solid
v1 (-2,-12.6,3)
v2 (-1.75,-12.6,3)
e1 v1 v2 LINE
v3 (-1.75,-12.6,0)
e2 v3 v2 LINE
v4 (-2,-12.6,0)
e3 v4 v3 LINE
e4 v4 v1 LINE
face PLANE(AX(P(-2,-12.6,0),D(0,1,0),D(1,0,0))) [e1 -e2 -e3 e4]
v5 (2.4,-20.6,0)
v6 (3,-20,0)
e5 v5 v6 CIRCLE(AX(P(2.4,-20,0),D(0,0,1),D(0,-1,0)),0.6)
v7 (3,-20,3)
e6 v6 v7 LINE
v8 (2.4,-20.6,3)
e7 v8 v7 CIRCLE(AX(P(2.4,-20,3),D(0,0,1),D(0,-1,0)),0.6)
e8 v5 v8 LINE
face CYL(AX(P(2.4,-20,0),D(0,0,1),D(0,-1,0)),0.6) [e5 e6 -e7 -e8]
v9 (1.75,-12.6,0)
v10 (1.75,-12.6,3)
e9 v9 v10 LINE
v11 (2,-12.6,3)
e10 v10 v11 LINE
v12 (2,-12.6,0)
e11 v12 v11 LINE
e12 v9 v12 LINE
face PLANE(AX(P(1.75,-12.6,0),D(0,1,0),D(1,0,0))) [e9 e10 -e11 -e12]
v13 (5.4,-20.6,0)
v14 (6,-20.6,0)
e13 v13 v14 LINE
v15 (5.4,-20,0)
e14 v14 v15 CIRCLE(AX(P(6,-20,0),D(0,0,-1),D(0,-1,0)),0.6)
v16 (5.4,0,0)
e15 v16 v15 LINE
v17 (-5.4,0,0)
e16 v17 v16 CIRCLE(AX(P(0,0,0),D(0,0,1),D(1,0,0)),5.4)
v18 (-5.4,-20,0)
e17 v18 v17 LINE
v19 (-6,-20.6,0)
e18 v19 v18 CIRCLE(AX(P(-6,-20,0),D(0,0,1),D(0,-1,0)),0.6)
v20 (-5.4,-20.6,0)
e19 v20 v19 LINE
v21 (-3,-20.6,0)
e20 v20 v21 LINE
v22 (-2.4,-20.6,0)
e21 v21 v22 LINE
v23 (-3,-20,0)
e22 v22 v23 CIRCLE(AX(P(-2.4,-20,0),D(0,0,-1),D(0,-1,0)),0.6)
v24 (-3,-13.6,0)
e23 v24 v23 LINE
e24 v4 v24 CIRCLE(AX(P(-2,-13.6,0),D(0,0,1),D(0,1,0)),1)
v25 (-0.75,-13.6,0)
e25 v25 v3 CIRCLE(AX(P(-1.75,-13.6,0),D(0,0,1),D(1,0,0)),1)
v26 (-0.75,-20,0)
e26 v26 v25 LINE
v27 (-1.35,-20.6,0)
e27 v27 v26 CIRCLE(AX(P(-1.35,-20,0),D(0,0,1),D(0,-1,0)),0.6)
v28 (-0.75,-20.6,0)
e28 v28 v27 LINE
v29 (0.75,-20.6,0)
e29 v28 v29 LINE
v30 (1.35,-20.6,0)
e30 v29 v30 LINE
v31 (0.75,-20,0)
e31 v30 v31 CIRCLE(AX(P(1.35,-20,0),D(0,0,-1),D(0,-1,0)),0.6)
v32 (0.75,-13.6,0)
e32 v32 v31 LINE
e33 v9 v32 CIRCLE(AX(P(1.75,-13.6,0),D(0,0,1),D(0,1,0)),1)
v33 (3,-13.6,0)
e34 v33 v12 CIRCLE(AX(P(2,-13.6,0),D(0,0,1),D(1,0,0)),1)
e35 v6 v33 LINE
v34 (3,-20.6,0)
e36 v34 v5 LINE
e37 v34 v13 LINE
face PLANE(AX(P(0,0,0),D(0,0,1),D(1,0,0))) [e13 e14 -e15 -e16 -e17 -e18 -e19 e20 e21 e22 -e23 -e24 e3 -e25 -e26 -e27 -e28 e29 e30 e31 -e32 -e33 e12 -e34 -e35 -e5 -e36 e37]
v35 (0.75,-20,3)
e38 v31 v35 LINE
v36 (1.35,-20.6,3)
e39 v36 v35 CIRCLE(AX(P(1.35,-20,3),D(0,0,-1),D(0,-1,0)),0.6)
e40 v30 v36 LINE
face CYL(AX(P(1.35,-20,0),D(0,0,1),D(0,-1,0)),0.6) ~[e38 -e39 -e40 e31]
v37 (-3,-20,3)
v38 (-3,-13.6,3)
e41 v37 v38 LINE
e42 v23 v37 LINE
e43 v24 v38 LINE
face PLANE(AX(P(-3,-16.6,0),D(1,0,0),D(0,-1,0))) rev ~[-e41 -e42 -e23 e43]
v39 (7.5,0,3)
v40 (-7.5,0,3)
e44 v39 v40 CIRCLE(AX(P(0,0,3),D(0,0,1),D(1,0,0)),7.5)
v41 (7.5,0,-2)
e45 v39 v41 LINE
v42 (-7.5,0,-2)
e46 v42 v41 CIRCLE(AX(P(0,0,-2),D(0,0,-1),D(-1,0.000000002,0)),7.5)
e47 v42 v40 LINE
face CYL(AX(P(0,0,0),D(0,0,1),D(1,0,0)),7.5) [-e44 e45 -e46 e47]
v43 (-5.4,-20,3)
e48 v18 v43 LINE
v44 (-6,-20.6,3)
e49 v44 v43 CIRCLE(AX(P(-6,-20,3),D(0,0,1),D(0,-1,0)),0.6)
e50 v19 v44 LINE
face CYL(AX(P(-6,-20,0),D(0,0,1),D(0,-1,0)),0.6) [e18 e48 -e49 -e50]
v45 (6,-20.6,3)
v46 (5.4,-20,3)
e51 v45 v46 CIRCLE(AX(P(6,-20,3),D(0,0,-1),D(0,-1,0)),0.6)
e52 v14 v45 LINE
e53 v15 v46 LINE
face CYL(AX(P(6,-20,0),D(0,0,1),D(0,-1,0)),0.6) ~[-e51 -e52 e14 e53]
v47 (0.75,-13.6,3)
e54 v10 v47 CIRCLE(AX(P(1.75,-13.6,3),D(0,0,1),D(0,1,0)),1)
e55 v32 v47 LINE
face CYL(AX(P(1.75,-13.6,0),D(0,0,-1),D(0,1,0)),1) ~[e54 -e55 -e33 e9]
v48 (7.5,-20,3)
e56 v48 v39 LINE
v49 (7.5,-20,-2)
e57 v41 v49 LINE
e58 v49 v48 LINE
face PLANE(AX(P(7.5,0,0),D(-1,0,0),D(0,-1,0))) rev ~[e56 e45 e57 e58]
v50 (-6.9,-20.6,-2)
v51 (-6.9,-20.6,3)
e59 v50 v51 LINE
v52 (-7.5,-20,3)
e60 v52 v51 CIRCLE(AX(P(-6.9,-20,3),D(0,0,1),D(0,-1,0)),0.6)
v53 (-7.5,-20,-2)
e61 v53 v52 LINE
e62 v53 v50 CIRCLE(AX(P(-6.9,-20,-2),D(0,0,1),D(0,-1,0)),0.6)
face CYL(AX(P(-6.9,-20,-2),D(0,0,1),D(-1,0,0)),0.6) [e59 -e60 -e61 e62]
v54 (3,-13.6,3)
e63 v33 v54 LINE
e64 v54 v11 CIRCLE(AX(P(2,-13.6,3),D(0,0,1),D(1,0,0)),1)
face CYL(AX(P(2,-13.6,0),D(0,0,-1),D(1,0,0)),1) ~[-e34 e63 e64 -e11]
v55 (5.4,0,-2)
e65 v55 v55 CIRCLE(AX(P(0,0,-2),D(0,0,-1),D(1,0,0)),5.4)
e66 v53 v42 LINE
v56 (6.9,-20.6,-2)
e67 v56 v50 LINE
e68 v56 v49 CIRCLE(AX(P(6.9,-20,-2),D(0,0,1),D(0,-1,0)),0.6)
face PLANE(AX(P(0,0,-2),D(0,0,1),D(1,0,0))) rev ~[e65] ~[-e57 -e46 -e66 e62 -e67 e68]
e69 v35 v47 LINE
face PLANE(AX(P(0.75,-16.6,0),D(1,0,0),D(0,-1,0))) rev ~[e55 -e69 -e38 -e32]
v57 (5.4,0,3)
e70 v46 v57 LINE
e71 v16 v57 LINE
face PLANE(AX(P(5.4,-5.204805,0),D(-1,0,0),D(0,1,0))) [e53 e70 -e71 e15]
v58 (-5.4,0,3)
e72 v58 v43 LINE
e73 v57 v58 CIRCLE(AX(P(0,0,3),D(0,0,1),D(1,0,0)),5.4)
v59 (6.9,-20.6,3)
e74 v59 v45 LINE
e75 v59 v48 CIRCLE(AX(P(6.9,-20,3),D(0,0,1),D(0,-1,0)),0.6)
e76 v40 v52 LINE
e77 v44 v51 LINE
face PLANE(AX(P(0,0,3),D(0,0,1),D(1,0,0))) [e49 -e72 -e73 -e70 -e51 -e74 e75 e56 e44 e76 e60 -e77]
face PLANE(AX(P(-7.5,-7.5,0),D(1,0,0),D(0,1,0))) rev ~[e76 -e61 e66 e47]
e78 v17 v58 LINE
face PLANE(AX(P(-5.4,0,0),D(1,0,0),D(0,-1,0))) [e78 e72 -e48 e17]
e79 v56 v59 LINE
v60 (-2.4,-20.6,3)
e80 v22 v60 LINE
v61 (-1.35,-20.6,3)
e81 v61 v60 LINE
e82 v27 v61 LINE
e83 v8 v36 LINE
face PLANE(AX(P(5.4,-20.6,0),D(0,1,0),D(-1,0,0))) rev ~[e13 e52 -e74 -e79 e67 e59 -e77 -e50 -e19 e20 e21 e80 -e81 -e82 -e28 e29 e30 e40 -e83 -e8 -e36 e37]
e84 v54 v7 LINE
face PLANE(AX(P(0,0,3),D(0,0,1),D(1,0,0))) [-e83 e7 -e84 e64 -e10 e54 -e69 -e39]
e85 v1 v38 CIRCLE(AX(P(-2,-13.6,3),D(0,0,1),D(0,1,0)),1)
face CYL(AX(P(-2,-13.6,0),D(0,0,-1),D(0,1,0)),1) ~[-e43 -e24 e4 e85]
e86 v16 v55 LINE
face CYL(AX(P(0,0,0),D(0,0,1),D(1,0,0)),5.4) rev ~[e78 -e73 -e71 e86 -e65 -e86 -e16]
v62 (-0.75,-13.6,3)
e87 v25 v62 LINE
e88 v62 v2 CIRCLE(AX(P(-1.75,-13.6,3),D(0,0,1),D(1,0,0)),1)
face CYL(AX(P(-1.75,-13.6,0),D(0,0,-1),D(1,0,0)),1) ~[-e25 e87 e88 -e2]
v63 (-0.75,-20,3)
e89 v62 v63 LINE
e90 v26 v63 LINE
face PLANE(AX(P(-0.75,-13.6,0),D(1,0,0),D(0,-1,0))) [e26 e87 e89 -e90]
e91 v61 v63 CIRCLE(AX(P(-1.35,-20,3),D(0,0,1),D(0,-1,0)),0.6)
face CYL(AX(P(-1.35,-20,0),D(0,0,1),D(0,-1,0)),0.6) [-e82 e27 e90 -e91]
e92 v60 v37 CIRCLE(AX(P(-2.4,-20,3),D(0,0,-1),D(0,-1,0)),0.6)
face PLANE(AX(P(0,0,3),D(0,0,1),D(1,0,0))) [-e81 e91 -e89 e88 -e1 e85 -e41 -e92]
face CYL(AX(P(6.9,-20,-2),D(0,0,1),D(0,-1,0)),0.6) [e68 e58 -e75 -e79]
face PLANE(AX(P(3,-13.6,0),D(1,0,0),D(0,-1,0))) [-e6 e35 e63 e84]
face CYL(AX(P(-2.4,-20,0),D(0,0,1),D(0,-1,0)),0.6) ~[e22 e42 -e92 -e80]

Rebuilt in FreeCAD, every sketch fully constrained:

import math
import FreeCAD as App
import Part
import Sketcher
from FreeCAD import Vector


def edges_at(feature, points):
    """Names of the edges that pass closest to the given points."""
    edges = feature.Shape.Edges
    near = lambda p: min(range(len(edges)), key=lambda i: edges[i].distToShape(Part.Vertex(*p))[0])
    return sorted({f"Edge{near(p) + 1}" for p in points})

doc = App.newDocument("Part")
body = doc.addObject("PartDesign::Body", "Body")

sketch1 = body.newObject("Sketcher::SketchObject", "Sketch")
sketch1.AttachmentSupport = (doc.getObject("XY_Plane"), [""])
sketch1.MapMode = "FlatFace"
sketch1.addGeometry(Part.LineSegment(Vector(-8, 0, 0), Vector(-8, -21, 0)), False)
sketch1.addGeometry(Part.LineSegment(Vector(-8, -21, 0), Vector(8, -21, 0)), False)
sketch1.addGeometry(Part.LineSegment(Vector(8, -21, 0), Vector(8, 0, 0)), False)
sketch1.addGeometry(Part.ArcOfCircle(Part.Circle(Vector(0, 0, 0), Vector(0, 0, 1), 8), math.radians(0), math.radians(180)), False)
sketch1.addGeometry(Part.Circle(Vector(0, 0, 0), Vector(0, 0, 1), 5), False)
sketch1.addConstraint(Sketcher.Constraint("Coincident", 0, 2, 1, 1))
sketch1.addConstraint(Sketcher.Constraint("Coincident", 1, 2, 2, 1))
sketch1.addConstraint(Sketcher.Constraint("Tangent", 2, 2, 3, 1))
sketch1.addConstraint(Sketcher.Constraint("Tangent", 3, 2, 0, 1))
sketch1.addConstraint(Sketcher.Constraint("Vertical", 0))
sketch1.addConstraint(Sketcher.Constraint("Horizontal", 1))
sketch1.addConstraint(Sketcher.Constraint("Vertical", 2))
sketch1.addConstraint(Sketcher.Constraint("Coincident", 3, 3, -1, 1))
sketch1.addConstraint(Sketcher.Constraint("Coincident", 4, 3, -1, 1))
sketch1.addConstraint(Sketcher.Constraint("Diameter", 4, 10.8))
sketch1.addConstraint(Sketcher.Constraint("Radius", 3, 7.5))
sketch1.addConstraint(Sketcher.Constraint("DistanceY", 0, 2, 0, 1, 20.6))
pad1 = body.newObject("PartDesign::Pad", "Pad")
pad1.Profile = sketch1
pad1.Length = 2
pad1.Reversed = True

sketch2 = body.newObject("Sketcher::SketchObject", "Sketch001")
sketch2.AttachmentSupport = (doc.getObject("XY_Plane"), [""])
sketch2.MapMode = "FlatFace"
sketch2.addGeometry(Part.ArcOfCircle(Part.Circle(Vector(0, 0, 0), Vector(0, 0, 1), 5.4), math.radians(0), math.radians(180)), False)
sketch2.addGeometry(Part.LineSegment(Vector(5.4, 0, 0), Vector(5.4, -20.6, 0)), False)
sketch2.addGeometry(Part.LineSegment(Vector(5.4, -20.6, 0), Vector(7.5, -20.6, 0)), False)
sketch2.addGeometry(Part.LineSegment(Vector(7.5, -20.6, 0), Vector(7.5, 0, 0)), False)
sketch2.addGeometry(Part.ArcOfCircle(Part.Circle(Vector(0, 0, 0), Vector(0, 0, 1), 7.5), math.radians(0), math.radians(180)), False)
sketch2.addGeometry(Part.LineSegment(Vector(-7.5, 0, 0), Vector(-7.5, -20.6, 0)), False)
sketch2.addGeometry(Part.LineSegment(Vector(-7.5, -20.6, 0), Vector(-5.4, -20.6, 0)), False)
sketch2.addGeometry(Part.LineSegment(Vector(-5.4, -20.6, 0), Vector(-5.4, 0, 0)), False)
sketch2.addGeometry(Part.LineSegment(Vector(0.75, -20.6, 0), Vector(3, -20.6, 0)), False)
sketch2.addGeometry(Part.LineSegment(Vector(3, -20.6, 0), Vector(3, -13.6, 0)), False)
sketch2.addGeometry(Part.ArcOfCircle(Part.Circle(Vector(2, -13.6, 0), Vector(0, 0, 1), 1), math.radians(0), math.radians(90)), False)
sketch2.addGeometry(Part.LineSegment(Vector(2, -12.6, 0), Vector(1.75, -12.6, 0)), False)
sketch2.addGeometry(Part.ArcOfCircle(Part.Circle(Vector(1.75, -13.6, 0), Vector(0, 0, 1), 1), math.radians(90), math.radians(180)), False)
sketch2.addGeometry(Part.LineSegment(Vector(0.75, -13.6, 0), Vector(0.75, -20.6, 0)), False)
sketch2.addGeometry(Part.LineSegment(Vector(-3, -13.6, 0), Vector(-3, -20.6, 0)), False)
sketch2.addGeometry(Part.LineSegment(Vector(-3, -20.6, 0), Vector(-0.75, -20.6, 0)), False)
sketch2.addGeometry(Part.LineSegment(Vector(-0.75, -20.6, 0), Vector(-0.75, -13.6, 0)), False)
sketch2.addGeometry(Part.ArcOfCircle(Part.Circle(Vector(-1.75, -13.6, 0), Vector(0, 0, 1), 1), math.radians(0), math.radians(90)), False)
sketch2.addGeometry(Part.LineSegment(Vector(-1.75, -12.6, 0), Vector(-2, -12.6, 0)), False)
sketch2.addGeometry(Part.ArcOfCircle(Part.Circle(Vector(-2, -13.6, 0), Vector(0, 0, 1), 1), math.radians(90), math.radians(180)), False)
sketch2.addConstraint(Sketcher.Constraint("Tangent", 0, 1, 1, 1))
sketch2.addConstraint(Sketcher.Constraint("Coincident", 1, 2, 2, 1))
sketch2.addConstraint(Sketcher.Constraint("Coincident", 2, 2, 3, 1))
sketch2.addConstraint(Sketcher.Constraint("Tangent", 3, 2, 4, 1))
sketch2.addConstraint(Sketcher.Constraint("Tangent", 4, 2, 5, 1))
sketch2.addConstraint(Sketcher.Constraint("Coincident", 5, 2, 6, 1))
sketch2.addConstraint(Sketcher.Constraint("Coincident", 6, 2, 7, 1))
sketch2.addConstraint(Sketcher.Constraint("Tangent", 7, 2, 0, 2))
sketch2.addConstraint(Sketcher.Constraint("Coincident", 8, 2, 9, 1))
sketch2.addConstraint(Sketcher.Constraint("Tangent", 9, 2, 10, 1))
sketch2.addConstraint(Sketcher.Constraint("Tangent", 10, 2, 11, 1))
sketch2.addConstraint(Sketcher.Constraint("Tangent", 11, 2, 12, 1))
sketch2.addConstraint(Sketcher.Constraint("Tangent", 12, 2, 13, 1))
sketch2.addConstraint(Sketcher.Constraint("Coincident", 13, 2, 8, 1))
sketch2.addConstraint(Sketcher.Constraint("Coincident", 14, 2, 15, 1))
sketch2.addConstraint(Sketcher.Constraint("Coincident", 15, 2, 16, 1))
sketch2.addConstraint(Sketcher.Constraint("Tangent", 16, 2, 17, 1))
sketch2.addConstraint(Sketcher.Constraint("Tangent", 17, 2, 18, 1))
sketch2.addConstraint(Sketcher.Constraint("Tangent", 18, 2, 19, 1))
sketch2.addConstraint(Sketcher.Constraint("Tangent", 19, 2, 14, 1))
sketch2.addConstraint(Sketcher.Constraint("Vertical", 1))
sketch2.addConstraint(Sketcher.Constraint("Horizontal", 2))
sketch2.addConstraint(Sketcher.Constraint("Vertical", 3))
sketch2.addConstraint(Sketcher.Constraint("Vertical", 5))
sketch2.addConstraint(Sketcher.Constraint("Horizontal", 6))
sketch2.addConstraint(Sketcher.Constraint("Vertical", 7))
sketch2.addConstraint(Sketcher.Constraint("Horizontal", 8))
sketch2.addConstraint(Sketcher.Constraint("Vertical", 9))
sketch2.addConstraint(Sketcher.Constraint("Horizontal", 11))
sketch2.addConstraint(Sketcher.Constraint("Vertical", 13))
sketch2.addConstraint(Sketcher.Constraint("Vertical", 14))
sketch2.addConstraint(Sketcher.Constraint("Horizontal", 15))
sketch2.addConstraint(Sketcher.Constraint("Vertical", 16))
sketch2.addConstraint(Sketcher.Constraint("Horizontal", 18))
sketch2.addConstraint(Sketcher.Constraint("Coincident", 0, 3, -1, 1))
sketch2.addConstraint(Sketcher.Constraint("Coincident", 4, 3, -1, 1))
sketch2.addConstraint(Sketcher.Constraint("Equal", 10, 12))
sketch2.addConstraint(Sketcher.Constraint("Equal", 12, 17))
sketch2.addConstraint(Sketcher.Constraint("Equal", 17, 19))
sketch2.addConstraint(Sketcher.Constraint("Symmetric", 12, 3, 17, 3, -2))
sketch2.addConstraint(Sketcher.Constraint("Symmetric", 8, 2, 14, 2, -2))
sketch2.addConstraint(Sketcher.Constraint("Horizontal", 2, 2, 5, 2))
sketch2.addConstraint(Sketcher.Constraint("Horizontal", 6, 2, 8, 2))
sketch2.addConstraint(Sketcher.Constraint("Radius", 10, 1.0))
sketch2.addConstraint(Sketcher.Constraint("Radius", 0, 5.4))
sketch2.addConstraint(Sketcher.Constraint("Radius", 4, 7.5))
sketch2.addConstraint(Sketcher.Constraint("DistanceX", 19, 3, 10, 3, 4.0))
sketch2.addConstraint(Sketcher.Constraint("DistanceY", 10, 2, -1, 1, 12.6))
sketch2.addConstraint(Sketcher.Constraint("DistanceX", 15, 2, 13, 2, 1.5))
sketch2.addConstraint(Sketcher.Constraint("DistanceY", 9, 1, 9, 2, 7.0))
pad2 = body.newObject("PartDesign::Pad", "Pad001")
pad2.Profile = sketch2
pad2.Length = 3
doc.recompute()

fillet = body.newObject("PartDesign::Fillet", "Fillet")
fillet.Base = (pad2, edges_at(pad2, [
    (-7.5, -20.6, 0.5),
    (7.5, -20.6, 0.5),
    (-5.4, -20.6, 1.5),
    (5.4, -20.6, 1.5),
    (3, -20.6, 1.5),
    (0.75, -20.6, 1.5),
    (-3, -20.6, 1.5),
    (-0.75, -20.6, 1.5),
]))
fillet.Radius = 0.6

doc.recompute()
